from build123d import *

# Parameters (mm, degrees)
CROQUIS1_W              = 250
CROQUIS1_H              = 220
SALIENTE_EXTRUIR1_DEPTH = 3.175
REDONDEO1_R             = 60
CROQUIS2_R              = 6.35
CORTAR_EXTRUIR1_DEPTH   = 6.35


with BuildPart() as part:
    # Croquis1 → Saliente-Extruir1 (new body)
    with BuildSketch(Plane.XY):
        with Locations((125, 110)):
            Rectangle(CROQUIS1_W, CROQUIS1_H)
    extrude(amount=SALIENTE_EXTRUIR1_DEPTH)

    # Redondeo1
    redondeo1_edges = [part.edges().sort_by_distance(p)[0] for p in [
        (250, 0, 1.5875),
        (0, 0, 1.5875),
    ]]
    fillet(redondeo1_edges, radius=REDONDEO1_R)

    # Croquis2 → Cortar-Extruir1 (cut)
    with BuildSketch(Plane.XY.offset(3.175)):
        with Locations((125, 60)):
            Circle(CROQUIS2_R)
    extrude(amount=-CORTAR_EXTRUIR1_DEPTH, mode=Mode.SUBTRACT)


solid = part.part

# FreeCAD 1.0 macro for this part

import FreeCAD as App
import Part
import Sketcher


def edges_at(feature, points):
    """Names of the edges that pass closest to the given points."""
    edges = feature.Shape.Edges
    near = lambda p: min(range(len(edges)), key=lambda i: edges[i].distToShape(Part.Vertex(*p))[0])
    return sorted({f"Edge{near(p) + 1}" for p in points})


def add_polygon(sketch, points):
    """Adds a closed chain of lines whose ends are joined by coincident constraints."""
    first, n = sketch.GeometryCount, len(points)
    for a, b in zip(points, points[1:] + points[:1]):
        sketch.addGeometry(Part.LineSegment(App.Vector(*a, 0), App.Vector(*b, 0)), False)
    for i in range(n):
        sketch.addConstraint(Sketcher.Constraint("Coincident", first + i, 2, first + (i + 1) % n, 1))

doc = App.newDocument("Part")
body = doc.addObject("PartDesign::Body", "Body")

sketch1 = body.newObject("Sketcher::SketchObject", "Sketch")
sketch1.AttachmentSupport = (doc.getObject("XY_Plane"), [""])
sketch1.MapMode = "FlatFace"
add_polygon(sketch1, [(0, 220), (0, 0), (250, 0), (250, 220)])
sketch1.addConstraint([
    Sketcher.Constraint("Vertical", 0),
    Sketcher.Constraint("Horizontal", 1),
    Sketcher.Constraint("Vertical", 2),
    Sketcher.Constraint("Horizontal", 3),
    Sketcher.Constraint("Coincident", 0, 2, -1, 1),
    Sketcher.Constraint("DistanceX", 1, 1, 1, 2, 250.0),
    Sketcher.Constraint("DistanceY", 0, 2, 0, 1, 220.0),
])
pad1 = body.newObject("PartDesign::Pad", "Pad")
pad1.Profile = sketch1
pad1.Length = 3.175
doc.recompute()

fillet = body.newObject("PartDesign::Fillet", "Fillet")
fillet.Base = (pad1, edges_at(pad1, [(250, 0, 1.587), (0, 0, 1.587)]))
fillet.Radius = 60

sketch2 = body.newObject("Sketcher::SketchObject", "Sketch001")
sketch2.AttachmentSupport = (doc.getObject("XY_Plane"), [""])
sketch2.MapMode = "FlatFace"
sketch2.AttachmentOffset = App.Placement(App.Vector(0, 0, 3.175), App.Rotation())
sketch2.addGeometry(Part.Circle(App.Vector(125, 60, 0), App.Vector(0, 0, 1), 6.35), False)
sketch2.addConstraint([
    Sketcher.Constraint("Diameter", 0, 12.7),
    Sketcher.Constraint("DistanceX", -1, 1, 0, 3, 125.0),
    Sketcher.Constraint("DistanceY", -1, 1, 0, 3, 60.0),
])
pocket1 = body.newObject("PartDesign::Pocket", "Pocket")
pocket1.Profile = sketch2
pocket1.Length = 6.35

doc.recompute()
